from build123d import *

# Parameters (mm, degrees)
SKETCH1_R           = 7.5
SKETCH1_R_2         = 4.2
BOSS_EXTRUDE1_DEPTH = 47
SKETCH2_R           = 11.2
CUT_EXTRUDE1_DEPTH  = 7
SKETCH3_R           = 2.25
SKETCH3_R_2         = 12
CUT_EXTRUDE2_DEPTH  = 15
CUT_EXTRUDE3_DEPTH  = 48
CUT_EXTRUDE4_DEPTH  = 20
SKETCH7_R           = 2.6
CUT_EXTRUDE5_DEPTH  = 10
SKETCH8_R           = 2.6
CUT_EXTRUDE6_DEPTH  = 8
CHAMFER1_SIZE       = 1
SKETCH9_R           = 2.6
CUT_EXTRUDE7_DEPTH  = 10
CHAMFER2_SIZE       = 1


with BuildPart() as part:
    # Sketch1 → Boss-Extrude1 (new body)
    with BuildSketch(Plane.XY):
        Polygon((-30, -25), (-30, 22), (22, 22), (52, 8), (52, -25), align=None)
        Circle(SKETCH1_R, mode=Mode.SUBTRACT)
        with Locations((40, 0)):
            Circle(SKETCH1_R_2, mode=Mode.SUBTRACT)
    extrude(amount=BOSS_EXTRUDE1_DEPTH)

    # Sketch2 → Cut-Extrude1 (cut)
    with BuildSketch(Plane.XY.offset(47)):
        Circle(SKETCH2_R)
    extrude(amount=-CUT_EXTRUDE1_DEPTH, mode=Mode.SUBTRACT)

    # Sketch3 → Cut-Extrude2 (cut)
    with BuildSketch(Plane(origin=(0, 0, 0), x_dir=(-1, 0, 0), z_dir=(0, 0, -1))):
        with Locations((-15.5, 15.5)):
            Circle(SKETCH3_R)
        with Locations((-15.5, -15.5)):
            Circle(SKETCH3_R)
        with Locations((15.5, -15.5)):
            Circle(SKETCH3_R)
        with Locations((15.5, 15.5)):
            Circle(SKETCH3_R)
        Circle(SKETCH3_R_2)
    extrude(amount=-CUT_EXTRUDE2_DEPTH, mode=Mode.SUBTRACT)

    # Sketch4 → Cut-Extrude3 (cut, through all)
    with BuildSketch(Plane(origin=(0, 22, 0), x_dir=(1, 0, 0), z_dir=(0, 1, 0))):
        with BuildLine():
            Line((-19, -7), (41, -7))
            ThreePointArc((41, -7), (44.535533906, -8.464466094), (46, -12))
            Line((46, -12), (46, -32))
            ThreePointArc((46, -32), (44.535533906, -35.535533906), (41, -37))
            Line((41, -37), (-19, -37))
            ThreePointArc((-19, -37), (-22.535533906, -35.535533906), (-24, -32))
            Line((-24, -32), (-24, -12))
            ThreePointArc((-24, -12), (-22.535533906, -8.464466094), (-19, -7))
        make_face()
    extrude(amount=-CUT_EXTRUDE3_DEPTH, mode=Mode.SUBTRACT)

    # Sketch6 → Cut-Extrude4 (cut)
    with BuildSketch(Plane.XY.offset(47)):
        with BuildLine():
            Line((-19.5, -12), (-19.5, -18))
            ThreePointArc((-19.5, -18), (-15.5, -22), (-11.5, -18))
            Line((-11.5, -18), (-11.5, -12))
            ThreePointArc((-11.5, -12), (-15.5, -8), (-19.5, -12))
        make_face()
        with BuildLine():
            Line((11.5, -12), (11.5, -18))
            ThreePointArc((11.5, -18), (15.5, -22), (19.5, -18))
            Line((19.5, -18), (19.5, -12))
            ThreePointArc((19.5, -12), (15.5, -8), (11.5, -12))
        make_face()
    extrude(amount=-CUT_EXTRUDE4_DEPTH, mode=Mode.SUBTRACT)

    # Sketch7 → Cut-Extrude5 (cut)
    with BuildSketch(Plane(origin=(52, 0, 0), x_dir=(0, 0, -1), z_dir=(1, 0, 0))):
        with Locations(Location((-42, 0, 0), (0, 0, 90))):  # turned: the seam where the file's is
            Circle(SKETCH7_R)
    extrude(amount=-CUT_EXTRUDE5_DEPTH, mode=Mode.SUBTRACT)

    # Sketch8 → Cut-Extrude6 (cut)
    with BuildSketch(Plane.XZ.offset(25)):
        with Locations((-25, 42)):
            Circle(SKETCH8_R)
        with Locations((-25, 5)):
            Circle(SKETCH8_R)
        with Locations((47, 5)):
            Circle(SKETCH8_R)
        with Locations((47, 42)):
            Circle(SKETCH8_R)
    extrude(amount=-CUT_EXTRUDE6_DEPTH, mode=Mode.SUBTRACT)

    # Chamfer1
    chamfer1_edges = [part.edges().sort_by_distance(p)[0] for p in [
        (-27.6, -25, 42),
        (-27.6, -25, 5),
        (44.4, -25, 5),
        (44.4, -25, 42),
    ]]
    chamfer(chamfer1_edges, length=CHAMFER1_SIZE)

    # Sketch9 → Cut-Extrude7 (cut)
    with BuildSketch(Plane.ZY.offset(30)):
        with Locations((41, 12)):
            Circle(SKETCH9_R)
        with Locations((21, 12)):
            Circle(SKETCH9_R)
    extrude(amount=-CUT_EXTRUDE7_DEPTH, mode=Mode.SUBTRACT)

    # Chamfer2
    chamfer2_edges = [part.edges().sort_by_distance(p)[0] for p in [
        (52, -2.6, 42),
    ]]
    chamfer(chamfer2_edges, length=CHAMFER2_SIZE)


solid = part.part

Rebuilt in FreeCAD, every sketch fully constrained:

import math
import FreeCAD as App
import Part
import Sketcher
from FreeCAD import Vector


def edges_at(feature, points):
    """Names of the edges that pass closest to the given points."""
    edges = feature.Shape.Edges
    near = lambda p: min(range(len(edges)), key=lambda i: edges[i].distToShape(Part.Vertex(*p))[0])
    return sorted({f"Edge{near(p) + 1}" for p in points})


def add_polygon(sketch, points):
    """Adds a closed chain of lines whose ends are joined by coincident constraints."""
    first, n = sketch.GeometryCount, len(points)
    for a, b in zip(points, points[1:] + points[:1]):
        sketch.addGeometry(Part.LineSegment(App.Vector(*a, 0), App.Vector(*b, 0)), False)
    for i in range(n):
        sketch.addConstraint(Sketcher.Constraint("Coincident", first + i, 2, first + (i + 1) % n, 1))

doc = App.newDocument("Part")
params = doc.addObject("Spreadsheet::Sheet", "Params")
for row, (alias, value) in enumerate([
    ("sketch1_diameter", "15 mm"),
    ("sketch1_diameter2", "8.4 mm"),
    ("sketch1_width", "82 mm"),
    ("sketch1_width2", "52 mm"),
    ("sketch1_height", "47 mm"),
    ("pad1_length", "47 mm"),
    ("sketch2_diameter", "22.4 mm"),
    ("pocket1_length", "7 mm"),
    ("sketch3_diameter", "24 mm"),
    ("sketch3_diameter2", "4.5 mm"),
    ("pocket2_length", "15 mm"),
    ("sketch4_radius", "5 mm"),
    ("sketch4_width", "60 mm"),
    ("sketch4_height", "20 mm"),
    ("sketch5_radius", "4 mm"),
    ("sketch5_height", "6 mm"),
    ("pocket4_length", "20 mm"),
    ("sketch6_diameter", "5.2 mm"),
    ("pocket5_length", "10 mm"),
    ("sketch7_diameter", "5.2 mm"),
    ("pocket6_length", "8 mm"),
    ("chamfer_size", "1 mm"),
    ("sketch8_diameter", "5.2 mm"),
    ("pocket7_length", "10 mm"),
    ("chamfer2_size", "1 mm"),
], start=1):
    params.set(f"A{row}", alias)
    params.set(f"B{row}", "=" + value)
    params.setAlias(f"B{row}", alias)

body = doc.addObject("PartDesign::Body", "Body")

# Sketch on XY plane
sketch1 = body.newObject("Sketcher::SketchObject", "Sketch")
sketch1.AttachmentSupport = (doc.getObject("XY_Plane"), [""])
sketch1.MapMode = "FlatFace"
add_polygon(sketch1, [(-30, 22), (-30, -25), (52, -25), (52, 8), (22, 22)])  # lines 0-4
sketch1.addGeometry(Part.Circle(Vector(40, 0, 0), Vector(0, 0, 1), 4.2), False)  # 5
sketch1.addGeometry(Part.Circle(Vector(0, 0, 0), Vector(0, 0, 1), 7.5), False)  # 6
sketch1.addConstraint(Sketcher.Constraint("Vertical", 0))
sketch1.addConstraint(Sketcher.Constraint("Horizontal", 1))
sketch1.addConstraint(Sketcher.Constraint("Vertical", 2))
sketch1.addConstraint(Sketcher.Constraint("Horizontal", 4))
sketch1.addConstraint(Sketcher.Constraint("Coincident", 6, 3, -1, 1))
sketch1.addConstraint(Sketcher.Constraint("PointOnObject", 5, 3, -1))
sketch1.addConstraint(Sketcher.Constraint("Diameter", 6, 15.0))
sketch1.addConstraint(Sketcher.Constraint("Diameter", 5, 8.4))
sketch1.addConstraint(Sketcher.Constraint("DistanceX", 1, 1, 1, 2, 82.0))
sketch1.addConstraint(Sketcher.Constraint("DistanceX", 4, 2, 4, 1, 52.0))
sketch1.addConstraint(Sketcher.Constraint("DistanceY", 0, 2, 0, 1, 47.0))
sketch1.addConstraint(Sketcher.Constraint("DistanceY", 2, 1, 2, 2, 33.0))
sketch1.addConstraint(Sketcher.Constraint("DistanceX", -1, 1, 5, 3, 40.0))
sketch1.addConstraint(Sketcher.Constraint("DistanceX", 0, 2, -1, 1, 30.0))
sketch1.addConstraint(Sketcher.Constraint("DistanceY", 0, 2, -1, 1, 25.0))
sketch1.setExpression("Constraints[11]", "Params.sketch1_diameter")
sketch1.setExpression("Constraints[12]", "Params.sketch1_diameter2")
sketch1.setExpression("Constraints[13]", "Params.sketch1_width")
sketch1.setExpression("Constraints[14]", "Params.sketch1_width2")
sketch1.setExpression("Constraints[15]", "Params.sketch1_height")
pad1 = body.newObject("PartDesign::Pad", "Pad")
pad1.Profile = sketch1
pad1.setExpression("Length", "Params.pad1_length")

# Sketch on XY plane
sketch2 = body.newObject("Sketcher::SketchObject", "Sketch001")
sketch2.AttachmentSupport = (doc.getObject("XY_Plane"), [""])
sketch2.MapMode = "FlatFace"
sketch2.AttachmentOffset = App.Placement(Vector(0, 0, 47), App.Rotation())
sketch2.addGeometry(Part.Circle(Vector(0, 0, 0), Vector(0, 0, 1), 11.2), False)
sketch2.addConstraint(Sketcher.Constraint("Coincident", 0, 3, -1, 1))
sketch2.addConstraint(Sketcher.Constraint("Diameter", 0, 22.4))
sketch2.setExpression("Constraints[1]", "Params.sketch2_diameter")
pocket1 = body.newObject("PartDesign::Pocket", "Pocket")
pocket1.Profile = sketch2
pocket1.setExpression("Length", "Params.pocket1_length")

# Sketch on XY plane
sketch3 = body.newObject("Sketcher::SketchObject", "Sketch002")
sketch3.AttachmentSupport = (doc.getObject("XY_Plane"), [""])
sketch3.MapMode = "FlatFace"
sketch3.addGeometry(Part.Circle(Vector(15.5, 15.5, 0), Vector(0, 0, 1), 2.25), False)
sketch3.addGeometry(Part.Circle(Vector(15.5, -15.5, 0), Vector(0, 0, 1), 2.25), False)
sketch3.addGeometry(Part.Circle(Vector(-15.5, -15.5, 0), Vector(0, 0, 1), 2.25), False)
sketch3.addGeometry(Part.Circle(Vector(-15.5, 15.5, 0), Vector(0, 0, 1), 2.25), False)
sketch3.addGeometry(Part.Circle(Vector(0, 0, 0), Vector(0, 0, 1), 12), False)
sketch3.addConstraint(Sketcher.Constraint("Coincident", 4, 3, -1, 1))
sketch3.addConstraint(Sketcher.Constraint("Equal", 0, 1))
sketch3.addConstraint(Sketcher.Constraint("Equal", 1, 2))
sketch3.addConstraint(Sketcher.Constraint("Equal", 2, 3))
sketch3.addConstraint(Sketcher.Constraint("Symmetric", 0, 3, 2, 3, -1, 1))
sketch3.addConstraint(Sketcher.Constraint("Symmetric", 1, 3, 3, 3, -1, 1))
sketch3.addConstraint(Sketcher.Constraint("Symmetric", 1, 3, 2, 3, -2))
sketch3.addConstraint(Sketcher.Constraint("Diameter", 4, 24.0))
sketch3.addConstraint(Sketcher.Constraint("Diameter", 0, 4.5))
sketch3.addConstraint(Sketcher.Constraint("DistanceY", 1, 3, 0, 3, 31.0))
sketch3.addConstraint(Sketcher.Constraint("DistanceX", 2, 3, 1, 3, 31.0))
sketch3.setExpression("Constraints[7]", "Params.sketch3_diameter")
sketch3.setExpression("Constraints[8]", "Params.sketch3_diameter2")
pocket2 = body.newObject("PartDesign::Pocket", "Pocket001")
pocket2.Profile = sketch3
pocket2.setExpression("Length", "Params.pocket2_length")
pocket2.Reversed = True

# Sketch on XZ plane
sketch4 = body.newObject("Sketcher::SketchObject", "Sketch003")
sketch4.AttachmentSupport = (doc.getObject("XZ_Plane"), [""])
sketch4.MapMode = "FlatFace"
sketch4.AttachmentOffset = App.Placement(Vector(0, 0, -22), App.Rotation())
sketch4.addGeometry(Part.LineSegment(Vector(41, 7, 0), Vector(-19, 7, 0)), False)
sketch4.addGeometry(Part.ArcOfCircle(Part.Circle(Vector(-19, 12, 0), Vector(0, 0, 1), 5), math.radians(180), math.radians(270)), False)
sketch4.addGeometry(Part.LineSegment(Vector(-24, 12, 0), Vector(-24, 32, 0)), False)
sketch4.addGeometry(Part.ArcOfCircle(Part.Circle(Vector(-19, 32, 0), Vector(0, 0, 1), 5), math.radians(90), math.radians(180)), False)
sketch4.addGeometry(Part.LineSegment(Vector(-19, 37, 0), Vector(41, 37, 0)), False)
sketch4.addGeometry(Part.ArcOfCircle(Part.Circle(Vector(41, 32, 0), Vector(0, 0, 1), 5), math.radians(0), math.radians(90)), False)
sketch4.addGeometry(Part.LineSegment(Vector(46, 32, 0), Vector(46, 12, 0)), False)
sketch4.addGeometry(Part.ArcOfCircle(Part.Circle(Vector(41, 12, 0), Vector(0, 0, 1), 5), math.radians(-90), math.radians(0)), False)
sketch4.addConstraint(Sketcher.Constraint("Tangent", 0, 2, 1, 2))
sketch4.addConstraint(Sketcher.Constraint("Tangent", 1, 1, 2, 1))
sketch4.addConstraint(Sketcher.Constraint("Tangent", 2, 2, 3, 2))
sketch4.addConstraint(Sketcher.Constraint("Tangent", 3, 1, 4, 1))
sketch4.addConstraint(Sketcher.Constraint("Tangent", 4, 2, 5, 2))
sketch4.addConstraint(Sketcher.Constraint("Tangent", 5, 1, 6, 1))
sketch4.addConstraint(Sketcher.Constraint("Tangent", 6, 2, 7, 2))
sketch4.addConstraint(Sketcher.Constraint("Tangent", 7, 1, 0, 1))
sketch4.addConstraint(Sketcher.Constraint("Horizontal", 0))
sketch4.addConstraint(Sketcher.Constraint("Vertical", 2))
sketch4.addConstraint(Sketcher.Constraint("Horizontal", 4))
sketch4.addConstraint(Sketcher.Constraint("Vertical", 6))
sketch4.addConstraint(Sketcher.Constraint("Equal", 1, 3))
sketch4.addConstraint(Sketcher.Constraint("Equal", 3, 5))
sketch4.addConstraint(Sketcher.Constraint("Equal", 5, 7))
sketch4.addConstraint(Sketcher.Constraint("Radius", 1, 5.0))
sketch4.addConstraint(Sketcher.Constraint("DistanceX", 0, 2, 0, 1, 60.0))
sketch4.addConstraint(Sketcher.Constraint("DistanceY", 2, 1, 2, 2, 20.0))
sketch4.addConstraint(Sketcher.Constraint("DistanceX", 1, 3, -1, 1, 19.0))
sketch4.addConstraint(Sketcher.Constraint("DistanceY", -1, 1, 1, 3, 12.0))
sketch4.setExpression("Constraints[15]", "Params.sketch4_radius")
sketch4.setExpression("Constraints[16]", "Params.sketch4_width")
sketch4.setExpression("Constraints[17]", "Params.sketch4_height")
pocket3 = body.newObject("PartDesign::Pocket", "Pocket002")
pocket3.Profile = sketch4
pocket3.Type = "ThroughAll"
pocket3.Reversed = True

# Sketch on XY plane
sketch5 = body.newObject("Sketcher::SketchObject", "Sketch004")
sketch5.AttachmentSupport = (doc.getObject("XY_Plane"), [""])
sketch5.MapMode = "FlatFace"
sketch5.AttachmentOffset = App.Placement(Vector(0, 0, 47), App.Rotation())
sketch5.addGeometry(Part.LineSegment(Vector(-19.5, -12, 0), Vector(-19.5, -18, 0)), False)
sketch5.addGeometry(Part.ArcOfCircle(Part.Circle(Vector(-15.5, -18, 0), Vector(0, 0, 1), 4), math.radians(180), math.radians(360)), False)
sketch5.addGeometry(Part.LineSegment(Vector(-11.5, -18, 0), Vector(-11.5, -12, 0)), False)
sketch5.addGeometry(Part.ArcOfCircle(Part.Circle(Vector(-15.5, -12, 0), Vector(0, 0, 1), 4), math.radians(0), math.radians(180)), False)
sketch5.addGeometry(Part.LineSegment(Vector(11.5, -12, 0), Vector(11.5, -18, 0)), False)
sketch5.addGeometry(Part.ArcOfCircle(Part.Circle(Vector(15.5, -18, 0), Vector(0, 0, 1), 4), math.radians(180), math.radians(360)), False)
sketch5.addGeometry(Part.LineSegment(Vector(19.5, -18, 0), Vector(19.5, -12, 0)), False)
sketch5.addGeometry(Part.ArcOfCircle(Part.Circle(Vector(15.5, -12, 0), Vector(0, 0, 1), 4), math.radians(0), math.radians(180)), False)
sketch5.addConstraint(Sketcher.Constraint("Tangent", 0, 2, 1, 1))
sketch5.addConstraint(Sketcher.Constraint("Tangent", 1, 2, 2, 1))
sketch5.addConstraint(Sketcher.Constraint("Tangent", 2, 2, 3, 1))
sketch5.addConstraint(Sketcher.Constraint("Tangent", 3, 2, 0, 1))
sketch5.addConstraint(Sketcher.Constraint("Tangent", 4, 2, 5, 1))
sketch5.addConstraint(Sketcher.Constraint("Tangent", 5, 2, 6, 1))
sketch5.addConstraint(Sketcher.Constraint("Tangent", 6, 2, 7, 1))
sketch5.addConstraint(Sketcher.Constraint("Tangent", 7, 2, 4, 1))
sketch5.addConstraint(Sketcher.Constraint("Vertical", 0))
sketch5.addConstraint(Sketcher.Constraint("Vertical", 2))
sketch5.addConstraint(Sketcher.Constraint("Vertical", 4))
sketch5.addConstraint(Sketcher.Constraint("Vertical", 6))
sketch5.addConstraint(Sketcher.Constraint("Equal", 3, 5))
sketch5.addConstraint(Sketcher.Constraint("Symmetric", 1, 3, 5, 3, -2))
sketch5.addConstraint(Sketcher.Constraint("Horizontal", 3, 3, 7, 3))
sketch5.addConstraint(Sketcher.Constraint("Radius", 1, 4.0))
sketch5.addConstraint(Sketcher.Constraint("DistanceY", 0, 2, 0, 1, 6.0))
sketch5.addConstraint(Sketcher.Constraint("DistanceY", 1, 3, -1, 1, 18.0))
sketch5.addConstraint(Sketcher.Constraint("DistanceX", 1, 3, 5, 3, 31.0))
sketch5.setExpression("Constraints[15]", "Params.sketch5_radius")
sketch5.setExpression("Constraints[16]", "Params.sketch5_height")
pocket4 = body.newObject("PartDesign::Pocket", "Pocket003")
pocket4.Profile = sketch5
pocket4.setExpression("Length", "Params.pocket4_length")

# Sketch on YZ plane
sketch6 = body.newObject("Sketcher::SketchObject", "Sketch005")
sketch6.AttachmentSupport = (doc.getObject("YZ_Plane"), [""])
sketch6.MapMode = "FlatFace"
sketch6.AttachmentOffset = App.Placement(Vector(0, 0, 52), App.Rotation())
sketch6.addGeometry(Part.Circle(Vector(0, 42, 0), Vector(0, 0, 1), 2.6), False)
sketch6.addConstraint(Sketcher.Constraint("PointOnObject", 0, 3, -2))
sketch6.addConstraint(Sketcher.Constraint("Diameter", 0, 5.2))
sketch6.addConstraint(Sketcher.Constraint("DistanceY", -1, 1, 0, 3, 42.0))
sketch6.setExpression("Constraints[1]", "Params.sketch6_diameter")
pocket5 = body.newObject("PartDesign::Pocket", "Pocket004")
pocket5.Profile = sketch6
pocket5.setExpression("Length", "Params.pocket5_length")

# Sketch on XZ plane
sketch7 = body.newObject("Sketcher::SketchObject", "Sketch006")
sketch7.AttachmentSupport = (doc.getObject("XZ_Plane"), [""])
sketch7.MapMode = "FlatFace"
sketch7.AttachmentOffset = App.Placement(Vector(0, 0, 25), App.Rotation())
sketch7.addGeometry(Part.Circle(Vector(-25, 42, 0), Vector(0, 0, 1), 2.6), False)
sketch7.addGeometry(Part.Circle(Vector(-25, 5, 0), Vector(0, 0, 1), 2.6), False)
sketch7.addGeometry(Part.Circle(Vector(47, 5, 0), Vector(0, 0, 1), 2.6), False)
sketch7.addGeometry(Part.Circle(Vector(47, 42, 0), Vector(0, 0, 1), 2.6), False)
sketch7.addConstraint(Sketcher.Constraint("Equal", 0, 1))
sketch7.addConstraint(Sketcher.Constraint("Equal", 1, 2))
sketch7.addConstraint(Sketcher.Constraint("Equal", 2, 3))
sketch7.addConstraint(Sketcher.Constraint("Horizontal", 1, 3, 2, 3))
sketch7.addConstraint(Sketcher.Constraint("Horizontal", 0, 3, 3, 3))
sketch7.addConstraint(Sketcher.Constraint("Vertical", 0, 3, 1, 3))
sketch7.addConstraint(Sketcher.Constraint("Vertical", 2, 3, 3, 3))
sketch7.addConstraint(Sketcher.Constraint("Diameter", 0, 5.2))
sketch7.addConstraint(Sketcher.Constraint("DistanceX", 0, 3, -1, 1, 25.0))
sketch7.addConstraint(Sketcher.Constraint("DistanceY", -1, 1, 0, 3, 42.0))
sketch7.addConstraint(Sketcher.Constraint("DistanceY", -1, 1, 1, 3, 5.0))
sketch7.addConstraint(Sketcher.Constraint("DistanceX", -1, 1, 2, 3, 47.0))
sketch7.setExpression("Constraints[7]", "Params.sketch7_diameter")
pocket6 = body.newObject("PartDesign::Pocket", "Pocket005")
pocket6.Profile = sketch7
pocket6.setExpression("Length", "Params.pocket6_length")
doc.recompute()

chamfer = body.newObject("PartDesign::Chamfer", "Chamfer")
chamfer.Base = (pocket6, edges_at(pocket6, [
    (-27.6, -25, 42),
    (-27.6, -25, 5),
    (44.4, -25, 5),
    (44.4, -25, 42),
]))
chamfer.setExpression("Size", "Params.chamfer_size")

# Sketch on YZ plane
sketch8 = body.newObject("Sketcher::SketchObject", "Sketch007")
sketch8.AttachmentSupport = (doc.getObject("YZ_Plane"), [""])
sketch8.MapMode = "FlatFace"
sketch8.AttachmentOffset = App.Placement(Vector(0, 0, -30), App.Rotation())
sketch8.addGeometry(Part.Circle(Vector(12, 41, 0), Vector(0, 0, 1), 2.6), False)
sketch8.addGeometry(Part.Circle(Vector(12, 21, 0), Vector(0, 0, 1), 2.6), False)
sketch8.addConstraint(Sketcher.Constraint("Equal", 0, 1))
sketch8.addConstraint(Sketcher.Constraint("Vertical", 0, 3, 1, 3))
sketch8.addConstraint(Sketcher.Constraint("Diameter", 0, 5.2))
sketch8.addConstraint(Sketcher.Constraint("DistanceX", -1, 1, 0, 3, 12.0))
sketch8.addConstraint(Sketcher.Constraint("DistanceY", -1, 1, 0, 3, 41.0))
sketch8.addConstraint(Sketcher.Constraint("DistanceY", -1, 1, 1, 3, 21.0))
sketch8.setExpression("Constraints[2]", "Params.sketch8_diameter")
pocket7 = body.newObject("PartDesign::Pocket", "Pocket006")
pocket7.Profile = sketch8
pocket7.setExpression("Length", "Params.pocket7_length")
pocket7.Reversed = True
doc.recompute()

chamfer2 = body.newObject("PartDesign::Chamfer", "Chamfer001")
chamfer2.Base = (pocket7, edges_at(pocket7, [(52, -2.6, 42)]))
chamfer2.setExpression("Size", "Params.chamfer2_size")

doc.recompute()
